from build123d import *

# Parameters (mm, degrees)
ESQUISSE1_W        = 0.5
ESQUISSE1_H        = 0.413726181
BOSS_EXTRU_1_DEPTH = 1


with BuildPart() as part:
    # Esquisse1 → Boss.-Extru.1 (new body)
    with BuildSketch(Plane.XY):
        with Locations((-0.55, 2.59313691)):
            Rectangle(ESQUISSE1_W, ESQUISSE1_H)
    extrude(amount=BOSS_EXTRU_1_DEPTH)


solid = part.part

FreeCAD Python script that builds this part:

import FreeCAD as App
import Part
import Sketcher
Q = App.Units.Quantity


def add_polygon(sketch, points):
    """Adds a closed chain of lines whose ends are joined by coincident constraints."""
    first, n = sketch.GeometryCount, len(points)
    for a, b in zip(points, points[1:] + points[:1]):
        sketch.addGeometry(Part.LineSegment(App.Vector(*a, 0), App.Vector(*b, 0)), False)
    for i in range(n):
        sketch.addConstraint(Sketcher.Constraint("Coincident", first + i, 2, first + (i + 1) % n, 1))

doc = App.newDocument("Part")
params = doc.addObject("Spreadsheet::Sheet", "Params")
for row, (alias, value) in enumerate([
    ("sketch1_width", "0.5 mm"),
    ("pad1_length", "1 mm"),
], start=1):
    params.set(f"A{row}", alias)
    params.set(f"B{row}", "=" + value)
    params.setAlias(f"B{row}", alias)

body = doc.addObject("PartDesign::Body", "Body")

# Sketch on XY plane
sketch1 = doc.addObject("Sketcher::SketchObject", "Sketch")
body.addObject(sketch1)
sketch1.AttachmentSupport = (doc.XY_Plane, [""])
sketch1.MapMode = "FlatFace"
add_polygon(sketch1, [(-0.8, 2.8), (-0.8, 2.39), (-0.3, 2.39), (-0.3, 2.8)])  # lines 0-3
sketch1.addConstraint(Sketcher.Constraint("Vertical", 0))
sketch1.addConstraint(Sketcher.Constraint("Horizontal", 1))
sketch1.addConstraint(Sketcher.Constraint("Vertical", 2))
sketch1.addConstraint(Sketcher.Constraint("Horizontal", 3))
sketch1.addConstraint(Sketcher.Constraint("DistanceX", 1, 1, 1, 2, Q("0.5 mm")))
sketch1.addConstraint(Sketcher.Constraint("DistanceX", 0, 2, -1, 1, Q("0.8 mm")))
sketch1.addConstraint(Sketcher.Constraint("DistanceY", -1, 1, 2, 2, Q("2.8 mm")))
sketch1.addConstraint(Sketcher.Constraint("DistanceY", 0, 2, 0, 1, Q("0.413726 mm")))
sketch1.setExpression("Constraints[8]", "Params.sketch1_width")
pad1 = doc.addObject("PartDesign::Pad", "Pad")
body.addObject(pad1)
pad1.Profile = sketch1
pad1.setExpression("Length", "Params.pad1_length")

doc.recompute()
